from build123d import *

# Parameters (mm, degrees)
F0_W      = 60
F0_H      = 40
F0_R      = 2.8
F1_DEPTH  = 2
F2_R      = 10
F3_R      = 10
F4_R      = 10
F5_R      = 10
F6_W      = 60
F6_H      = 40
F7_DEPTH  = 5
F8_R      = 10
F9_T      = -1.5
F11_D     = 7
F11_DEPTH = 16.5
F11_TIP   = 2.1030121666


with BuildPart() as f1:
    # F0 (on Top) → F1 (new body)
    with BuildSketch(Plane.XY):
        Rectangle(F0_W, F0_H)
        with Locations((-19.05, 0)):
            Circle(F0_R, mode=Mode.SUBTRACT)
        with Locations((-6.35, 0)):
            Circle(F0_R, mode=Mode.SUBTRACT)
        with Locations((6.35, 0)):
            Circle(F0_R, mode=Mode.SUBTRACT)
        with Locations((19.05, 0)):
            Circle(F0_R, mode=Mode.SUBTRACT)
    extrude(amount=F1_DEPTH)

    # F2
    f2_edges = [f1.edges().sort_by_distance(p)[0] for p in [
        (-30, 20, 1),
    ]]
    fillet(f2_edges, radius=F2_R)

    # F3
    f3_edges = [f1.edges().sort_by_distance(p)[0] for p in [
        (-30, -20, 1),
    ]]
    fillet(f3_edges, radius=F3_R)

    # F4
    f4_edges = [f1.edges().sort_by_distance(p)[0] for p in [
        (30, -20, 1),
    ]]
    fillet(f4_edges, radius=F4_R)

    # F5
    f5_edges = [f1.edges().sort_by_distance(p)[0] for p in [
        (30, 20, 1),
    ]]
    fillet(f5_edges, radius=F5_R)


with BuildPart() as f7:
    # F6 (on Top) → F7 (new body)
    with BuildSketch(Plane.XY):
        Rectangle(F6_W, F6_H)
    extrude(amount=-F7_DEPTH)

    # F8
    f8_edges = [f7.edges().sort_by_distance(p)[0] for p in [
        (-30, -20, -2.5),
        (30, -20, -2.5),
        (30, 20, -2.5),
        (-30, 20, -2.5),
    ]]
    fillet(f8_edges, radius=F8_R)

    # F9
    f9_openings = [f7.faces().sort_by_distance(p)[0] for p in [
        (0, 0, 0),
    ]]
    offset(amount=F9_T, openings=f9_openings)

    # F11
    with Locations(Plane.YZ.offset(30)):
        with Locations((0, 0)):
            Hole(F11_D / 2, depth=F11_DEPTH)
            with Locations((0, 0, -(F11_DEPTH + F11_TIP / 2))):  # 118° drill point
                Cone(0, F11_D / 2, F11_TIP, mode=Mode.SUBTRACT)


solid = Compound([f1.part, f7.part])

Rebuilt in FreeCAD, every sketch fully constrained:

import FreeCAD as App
import Part
import Sketcher
Q = App.Units.Quantity


def edges_at(feature, points):
    """Names of the edges that pass closest to the given points."""
    edges = feature.Shape.Edges
    near = lambda p: min(range(len(edges)), key=lambda i: edges[i].distToShape(Part.Vertex(*p))[0])
    return sorted({f"Edge{near(p) + 1}" for p in points})


def faces_at(feature, points):
    """Names of the faces that lie closest to the given points."""
    faces = feature.Shape.Faces
    near = lambda p: min(range(len(faces)), key=lambda i: faces[i].distToShape(Part.Vertex(*p))[0])
    return sorted({f"Face{near(p) + 1}" for p in points})

doc = App.newDocument("Part")
body = doc.addObject("PartDesign::Body", "Body")

# Sketch on XY plane
sketch1 = body.newObject("Sketcher::SketchObject", "Sketch")
sketch1.AttachmentSupport = (doc.getObject("XY_Plane"), [""])
sketch1.MapMode = "FlatFace"
sketch1.addGeometry([
    Part.LineSegment(App.Vector(-30, 20, 0), App.Vector(-30, -20, 0)),  # 0
    Part.LineSegment(App.Vector(-30, -20, 0), App.Vector(30, -20, 0)),  # 1
    Part.LineSegment(App.Vector(30, -20, 0), App.Vector(30, 20, 0)),  # 2
    Part.LineSegment(App.Vector(30, 20, 0), App.Vector(-30, 20, 0)),  # 3
    Part.Circle(App.Vector(-19.05, 0, 0), App.Vector(0, 0, 1), 2.8),  # 4
    Part.Circle(App.Vector(-6.35, 0, 0), App.Vector(0, 0, 1), 2.8),  # 5
    Part.Circle(App.Vector(6.35, 0, 0), App.Vector(0, 0, 1), 2.8),  # 6
    Part.Circle(App.Vector(19.05, 0, 0), App.Vector(0, 0, 1), 2.8),  # 7
], False)
sketch1.addConstraint([
    Sketcher.Constraint("Coincident", 0, 2, 1, 1),
    Sketcher.Constraint("Coincident", 1, 2, 2, 1),
    Sketcher.Constraint("Coincident", 2, 2, 3, 1),
    Sketcher.Constraint("Coincident", 3, 2, 0, 1),
    Sketcher.Constraint("Vertical", 0),
    Sketcher.Constraint("Horizontal", 1),
    Sketcher.Constraint("Vertical", 2),
    Sketcher.Constraint("Horizontal", 3),
    Sketcher.Constraint("Equal", 4, 5),
    Sketcher.Constraint("Equal", 5, 6),
    Sketcher.Constraint("Equal", 6, 7),
    Sketcher.Constraint("Symmetric", 5, 3, 6, 3, -1, 1),
    Sketcher.Constraint("Symmetric", 4, 3, 7, 3, -1, 1),
    Sketcher.Constraint("Symmetric", 0, 2, 2, 2, -1, 1),
    Sketcher.Constraint("PointOnObject", 4, 3, -1),
    Sketcher.Constraint("PointOnObject", 5, 3, -1),
    Sketcher.Constraint("Diameter", 4, Q("5.6 mm")),
    Sketcher.Constraint("DistanceX", 1, 1, 1, 2, Q("60 mm")),
    Sketcher.Constraint("DistanceY", 0, 2, 0, 1, Q("40 mm")),
    Sketcher.Constraint("DistanceX", 4, 3, 5, 3, Q("12.7 mm")),
    Sketcher.Constraint("DistanceX", 5, 3, 6, 3, Q("12.7 mm")),
])
pad1 = body.newObject("PartDesign::Pad", "Pad")
pad1.Profile = sketch1
pad1.Length = 2
doc.recompute()

fillet = body.newObject("PartDesign::Fillet", "Fillet")
fillet.Base = (pad1, edges_at(pad1, [(-30, 20, 1)]))
fillet.Radius = 10
doc.recompute()

fillet2 = body.newObject("PartDesign::Fillet", "Fillet001")
fillet2.Base = (fillet, edges_at(fillet, [(-30, -20, 1)]))
fillet2.Radius = 10
doc.recompute()

fillet3 = body.newObject("PartDesign::Fillet", "Fillet002")
fillet3.Base = (fillet2, edges_at(fillet2, [(30, -20, 1)]))
fillet3.Radius = 10
doc.recompute()

fillet4 = body.newObject("PartDesign::Fillet", "Fillet003")
fillet4.Base = (fillet3, edges_at(fillet3, [(30, 20, 1)]))
fillet4.Radius = 10
body2 = doc.addObject("PartDesign::Body", "Body001")

# Sketch on XY plane
sketch2 = body2.newObject("Sketcher::SketchObject", "Sketch001")
sketch2.AttachmentSupport = (doc.getObject("XY_Plane001"), [""])
sketch2.MapMode = "FlatFace"
sketch2.addGeometry([
    Part.LineSegment(App.Vector(-30, 20, 0), App.Vector(-30, -20, 0)),
    Part.LineSegment(App.Vector(-30, -20, 0), App.Vector(30, -20, 0)),
    Part.LineSegment(App.Vector(30, -20, 0), App.Vector(30, 20, 0)),
    Part.LineSegment(App.Vector(30, 20, 0), App.Vector(-30, 20, 0)),
], False)
sketch2.addConstraint([
    Sketcher.Constraint("Coincident", 0, 2, 1, 1),
    Sketcher.Constraint("Coincident", 1, 2, 2, 1),
    Sketcher.Constraint("Coincident", 2, 2, 3, 1),
    Sketcher.Constraint("Coincident", 3, 2, 0, 1),
    Sketcher.Constraint("Vertical", 0),
    Sketcher.Constraint("Horizontal", 1),
    Sketcher.Constraint("Vertical", 2),
    Sketcher.Constraint("Horizontal", 3),
    Sketcher.Constraint("Symmetric", 0, 2, 2, 2, -1, 1),
    Sketcher.Constraint("DistanceX", 1, 1, 1, 2, Q("60 mm")),
    Sketcher.Constraint("DistanceY", 0, 2, 0, 1, Q("40 mm")),
])
pad2 = body2.newObject("PartDesign::Pad", "Pad001")
pad2.Profile = sketch2
pad2.Length = 5
pad2.Reversed = True
doc.recompute()

fillet5 = body2.newObject("PartDesign::Fillet", "Fillet004")
fillet5.Base = (pad2, edges_at(pad2, [
    (-30, -20, -2.5),
    (30, -20, -2.5),
    (30, 20, -2.5),
    (-30, 20, -2.5),
]))
fillet5.Radius = 10
doc.recompute()

thickness = body2.newObject("PartDesign::Thickness", "Thickness")
thickness.Base = (fillet5, faces_at(fillet5, [(0, 0, 0)]))
thickness.Value = 1.5
thickness.Reversed = True
thickness.Join = "Arc"

# Sketch on YZ plane
sketch3 = body2.newObject("Sketcher::SketchObject", "Sketch002")
sketch3.AttachmentSupport = (doc.getObject("YZ_Plane001"), [""])
sketch3.MapMode = "FlatFace"
sketch3.AttachmentOffset = App.Placement(App.Vector(0, 0, 30), App.Rotation())
sketch3.addGeometry(Part.Circle(App.Vector(0, 0, 0), App.Vector(0, 0, 1), 3.5), False)
sketch3.addConstraint([
    Sketcher.Constraint("Coincident", 0, 3, -1, 1),
    Sketcher.Constraint("Diameter", 0, Q("7 mm")),
])
doc.recompute()
hole = body2.newObject("PartDesign::Hole", "Hole")
hole.Profile = sketch3
hole.ThreadType = "None"
hole.Diameter = 7
hole.DepthType = "Dimension"
hole.Depth = 16.5
hole.DrillPoint = "Angled"
hole.DrillPointAngle = 118

doc.recompute()
